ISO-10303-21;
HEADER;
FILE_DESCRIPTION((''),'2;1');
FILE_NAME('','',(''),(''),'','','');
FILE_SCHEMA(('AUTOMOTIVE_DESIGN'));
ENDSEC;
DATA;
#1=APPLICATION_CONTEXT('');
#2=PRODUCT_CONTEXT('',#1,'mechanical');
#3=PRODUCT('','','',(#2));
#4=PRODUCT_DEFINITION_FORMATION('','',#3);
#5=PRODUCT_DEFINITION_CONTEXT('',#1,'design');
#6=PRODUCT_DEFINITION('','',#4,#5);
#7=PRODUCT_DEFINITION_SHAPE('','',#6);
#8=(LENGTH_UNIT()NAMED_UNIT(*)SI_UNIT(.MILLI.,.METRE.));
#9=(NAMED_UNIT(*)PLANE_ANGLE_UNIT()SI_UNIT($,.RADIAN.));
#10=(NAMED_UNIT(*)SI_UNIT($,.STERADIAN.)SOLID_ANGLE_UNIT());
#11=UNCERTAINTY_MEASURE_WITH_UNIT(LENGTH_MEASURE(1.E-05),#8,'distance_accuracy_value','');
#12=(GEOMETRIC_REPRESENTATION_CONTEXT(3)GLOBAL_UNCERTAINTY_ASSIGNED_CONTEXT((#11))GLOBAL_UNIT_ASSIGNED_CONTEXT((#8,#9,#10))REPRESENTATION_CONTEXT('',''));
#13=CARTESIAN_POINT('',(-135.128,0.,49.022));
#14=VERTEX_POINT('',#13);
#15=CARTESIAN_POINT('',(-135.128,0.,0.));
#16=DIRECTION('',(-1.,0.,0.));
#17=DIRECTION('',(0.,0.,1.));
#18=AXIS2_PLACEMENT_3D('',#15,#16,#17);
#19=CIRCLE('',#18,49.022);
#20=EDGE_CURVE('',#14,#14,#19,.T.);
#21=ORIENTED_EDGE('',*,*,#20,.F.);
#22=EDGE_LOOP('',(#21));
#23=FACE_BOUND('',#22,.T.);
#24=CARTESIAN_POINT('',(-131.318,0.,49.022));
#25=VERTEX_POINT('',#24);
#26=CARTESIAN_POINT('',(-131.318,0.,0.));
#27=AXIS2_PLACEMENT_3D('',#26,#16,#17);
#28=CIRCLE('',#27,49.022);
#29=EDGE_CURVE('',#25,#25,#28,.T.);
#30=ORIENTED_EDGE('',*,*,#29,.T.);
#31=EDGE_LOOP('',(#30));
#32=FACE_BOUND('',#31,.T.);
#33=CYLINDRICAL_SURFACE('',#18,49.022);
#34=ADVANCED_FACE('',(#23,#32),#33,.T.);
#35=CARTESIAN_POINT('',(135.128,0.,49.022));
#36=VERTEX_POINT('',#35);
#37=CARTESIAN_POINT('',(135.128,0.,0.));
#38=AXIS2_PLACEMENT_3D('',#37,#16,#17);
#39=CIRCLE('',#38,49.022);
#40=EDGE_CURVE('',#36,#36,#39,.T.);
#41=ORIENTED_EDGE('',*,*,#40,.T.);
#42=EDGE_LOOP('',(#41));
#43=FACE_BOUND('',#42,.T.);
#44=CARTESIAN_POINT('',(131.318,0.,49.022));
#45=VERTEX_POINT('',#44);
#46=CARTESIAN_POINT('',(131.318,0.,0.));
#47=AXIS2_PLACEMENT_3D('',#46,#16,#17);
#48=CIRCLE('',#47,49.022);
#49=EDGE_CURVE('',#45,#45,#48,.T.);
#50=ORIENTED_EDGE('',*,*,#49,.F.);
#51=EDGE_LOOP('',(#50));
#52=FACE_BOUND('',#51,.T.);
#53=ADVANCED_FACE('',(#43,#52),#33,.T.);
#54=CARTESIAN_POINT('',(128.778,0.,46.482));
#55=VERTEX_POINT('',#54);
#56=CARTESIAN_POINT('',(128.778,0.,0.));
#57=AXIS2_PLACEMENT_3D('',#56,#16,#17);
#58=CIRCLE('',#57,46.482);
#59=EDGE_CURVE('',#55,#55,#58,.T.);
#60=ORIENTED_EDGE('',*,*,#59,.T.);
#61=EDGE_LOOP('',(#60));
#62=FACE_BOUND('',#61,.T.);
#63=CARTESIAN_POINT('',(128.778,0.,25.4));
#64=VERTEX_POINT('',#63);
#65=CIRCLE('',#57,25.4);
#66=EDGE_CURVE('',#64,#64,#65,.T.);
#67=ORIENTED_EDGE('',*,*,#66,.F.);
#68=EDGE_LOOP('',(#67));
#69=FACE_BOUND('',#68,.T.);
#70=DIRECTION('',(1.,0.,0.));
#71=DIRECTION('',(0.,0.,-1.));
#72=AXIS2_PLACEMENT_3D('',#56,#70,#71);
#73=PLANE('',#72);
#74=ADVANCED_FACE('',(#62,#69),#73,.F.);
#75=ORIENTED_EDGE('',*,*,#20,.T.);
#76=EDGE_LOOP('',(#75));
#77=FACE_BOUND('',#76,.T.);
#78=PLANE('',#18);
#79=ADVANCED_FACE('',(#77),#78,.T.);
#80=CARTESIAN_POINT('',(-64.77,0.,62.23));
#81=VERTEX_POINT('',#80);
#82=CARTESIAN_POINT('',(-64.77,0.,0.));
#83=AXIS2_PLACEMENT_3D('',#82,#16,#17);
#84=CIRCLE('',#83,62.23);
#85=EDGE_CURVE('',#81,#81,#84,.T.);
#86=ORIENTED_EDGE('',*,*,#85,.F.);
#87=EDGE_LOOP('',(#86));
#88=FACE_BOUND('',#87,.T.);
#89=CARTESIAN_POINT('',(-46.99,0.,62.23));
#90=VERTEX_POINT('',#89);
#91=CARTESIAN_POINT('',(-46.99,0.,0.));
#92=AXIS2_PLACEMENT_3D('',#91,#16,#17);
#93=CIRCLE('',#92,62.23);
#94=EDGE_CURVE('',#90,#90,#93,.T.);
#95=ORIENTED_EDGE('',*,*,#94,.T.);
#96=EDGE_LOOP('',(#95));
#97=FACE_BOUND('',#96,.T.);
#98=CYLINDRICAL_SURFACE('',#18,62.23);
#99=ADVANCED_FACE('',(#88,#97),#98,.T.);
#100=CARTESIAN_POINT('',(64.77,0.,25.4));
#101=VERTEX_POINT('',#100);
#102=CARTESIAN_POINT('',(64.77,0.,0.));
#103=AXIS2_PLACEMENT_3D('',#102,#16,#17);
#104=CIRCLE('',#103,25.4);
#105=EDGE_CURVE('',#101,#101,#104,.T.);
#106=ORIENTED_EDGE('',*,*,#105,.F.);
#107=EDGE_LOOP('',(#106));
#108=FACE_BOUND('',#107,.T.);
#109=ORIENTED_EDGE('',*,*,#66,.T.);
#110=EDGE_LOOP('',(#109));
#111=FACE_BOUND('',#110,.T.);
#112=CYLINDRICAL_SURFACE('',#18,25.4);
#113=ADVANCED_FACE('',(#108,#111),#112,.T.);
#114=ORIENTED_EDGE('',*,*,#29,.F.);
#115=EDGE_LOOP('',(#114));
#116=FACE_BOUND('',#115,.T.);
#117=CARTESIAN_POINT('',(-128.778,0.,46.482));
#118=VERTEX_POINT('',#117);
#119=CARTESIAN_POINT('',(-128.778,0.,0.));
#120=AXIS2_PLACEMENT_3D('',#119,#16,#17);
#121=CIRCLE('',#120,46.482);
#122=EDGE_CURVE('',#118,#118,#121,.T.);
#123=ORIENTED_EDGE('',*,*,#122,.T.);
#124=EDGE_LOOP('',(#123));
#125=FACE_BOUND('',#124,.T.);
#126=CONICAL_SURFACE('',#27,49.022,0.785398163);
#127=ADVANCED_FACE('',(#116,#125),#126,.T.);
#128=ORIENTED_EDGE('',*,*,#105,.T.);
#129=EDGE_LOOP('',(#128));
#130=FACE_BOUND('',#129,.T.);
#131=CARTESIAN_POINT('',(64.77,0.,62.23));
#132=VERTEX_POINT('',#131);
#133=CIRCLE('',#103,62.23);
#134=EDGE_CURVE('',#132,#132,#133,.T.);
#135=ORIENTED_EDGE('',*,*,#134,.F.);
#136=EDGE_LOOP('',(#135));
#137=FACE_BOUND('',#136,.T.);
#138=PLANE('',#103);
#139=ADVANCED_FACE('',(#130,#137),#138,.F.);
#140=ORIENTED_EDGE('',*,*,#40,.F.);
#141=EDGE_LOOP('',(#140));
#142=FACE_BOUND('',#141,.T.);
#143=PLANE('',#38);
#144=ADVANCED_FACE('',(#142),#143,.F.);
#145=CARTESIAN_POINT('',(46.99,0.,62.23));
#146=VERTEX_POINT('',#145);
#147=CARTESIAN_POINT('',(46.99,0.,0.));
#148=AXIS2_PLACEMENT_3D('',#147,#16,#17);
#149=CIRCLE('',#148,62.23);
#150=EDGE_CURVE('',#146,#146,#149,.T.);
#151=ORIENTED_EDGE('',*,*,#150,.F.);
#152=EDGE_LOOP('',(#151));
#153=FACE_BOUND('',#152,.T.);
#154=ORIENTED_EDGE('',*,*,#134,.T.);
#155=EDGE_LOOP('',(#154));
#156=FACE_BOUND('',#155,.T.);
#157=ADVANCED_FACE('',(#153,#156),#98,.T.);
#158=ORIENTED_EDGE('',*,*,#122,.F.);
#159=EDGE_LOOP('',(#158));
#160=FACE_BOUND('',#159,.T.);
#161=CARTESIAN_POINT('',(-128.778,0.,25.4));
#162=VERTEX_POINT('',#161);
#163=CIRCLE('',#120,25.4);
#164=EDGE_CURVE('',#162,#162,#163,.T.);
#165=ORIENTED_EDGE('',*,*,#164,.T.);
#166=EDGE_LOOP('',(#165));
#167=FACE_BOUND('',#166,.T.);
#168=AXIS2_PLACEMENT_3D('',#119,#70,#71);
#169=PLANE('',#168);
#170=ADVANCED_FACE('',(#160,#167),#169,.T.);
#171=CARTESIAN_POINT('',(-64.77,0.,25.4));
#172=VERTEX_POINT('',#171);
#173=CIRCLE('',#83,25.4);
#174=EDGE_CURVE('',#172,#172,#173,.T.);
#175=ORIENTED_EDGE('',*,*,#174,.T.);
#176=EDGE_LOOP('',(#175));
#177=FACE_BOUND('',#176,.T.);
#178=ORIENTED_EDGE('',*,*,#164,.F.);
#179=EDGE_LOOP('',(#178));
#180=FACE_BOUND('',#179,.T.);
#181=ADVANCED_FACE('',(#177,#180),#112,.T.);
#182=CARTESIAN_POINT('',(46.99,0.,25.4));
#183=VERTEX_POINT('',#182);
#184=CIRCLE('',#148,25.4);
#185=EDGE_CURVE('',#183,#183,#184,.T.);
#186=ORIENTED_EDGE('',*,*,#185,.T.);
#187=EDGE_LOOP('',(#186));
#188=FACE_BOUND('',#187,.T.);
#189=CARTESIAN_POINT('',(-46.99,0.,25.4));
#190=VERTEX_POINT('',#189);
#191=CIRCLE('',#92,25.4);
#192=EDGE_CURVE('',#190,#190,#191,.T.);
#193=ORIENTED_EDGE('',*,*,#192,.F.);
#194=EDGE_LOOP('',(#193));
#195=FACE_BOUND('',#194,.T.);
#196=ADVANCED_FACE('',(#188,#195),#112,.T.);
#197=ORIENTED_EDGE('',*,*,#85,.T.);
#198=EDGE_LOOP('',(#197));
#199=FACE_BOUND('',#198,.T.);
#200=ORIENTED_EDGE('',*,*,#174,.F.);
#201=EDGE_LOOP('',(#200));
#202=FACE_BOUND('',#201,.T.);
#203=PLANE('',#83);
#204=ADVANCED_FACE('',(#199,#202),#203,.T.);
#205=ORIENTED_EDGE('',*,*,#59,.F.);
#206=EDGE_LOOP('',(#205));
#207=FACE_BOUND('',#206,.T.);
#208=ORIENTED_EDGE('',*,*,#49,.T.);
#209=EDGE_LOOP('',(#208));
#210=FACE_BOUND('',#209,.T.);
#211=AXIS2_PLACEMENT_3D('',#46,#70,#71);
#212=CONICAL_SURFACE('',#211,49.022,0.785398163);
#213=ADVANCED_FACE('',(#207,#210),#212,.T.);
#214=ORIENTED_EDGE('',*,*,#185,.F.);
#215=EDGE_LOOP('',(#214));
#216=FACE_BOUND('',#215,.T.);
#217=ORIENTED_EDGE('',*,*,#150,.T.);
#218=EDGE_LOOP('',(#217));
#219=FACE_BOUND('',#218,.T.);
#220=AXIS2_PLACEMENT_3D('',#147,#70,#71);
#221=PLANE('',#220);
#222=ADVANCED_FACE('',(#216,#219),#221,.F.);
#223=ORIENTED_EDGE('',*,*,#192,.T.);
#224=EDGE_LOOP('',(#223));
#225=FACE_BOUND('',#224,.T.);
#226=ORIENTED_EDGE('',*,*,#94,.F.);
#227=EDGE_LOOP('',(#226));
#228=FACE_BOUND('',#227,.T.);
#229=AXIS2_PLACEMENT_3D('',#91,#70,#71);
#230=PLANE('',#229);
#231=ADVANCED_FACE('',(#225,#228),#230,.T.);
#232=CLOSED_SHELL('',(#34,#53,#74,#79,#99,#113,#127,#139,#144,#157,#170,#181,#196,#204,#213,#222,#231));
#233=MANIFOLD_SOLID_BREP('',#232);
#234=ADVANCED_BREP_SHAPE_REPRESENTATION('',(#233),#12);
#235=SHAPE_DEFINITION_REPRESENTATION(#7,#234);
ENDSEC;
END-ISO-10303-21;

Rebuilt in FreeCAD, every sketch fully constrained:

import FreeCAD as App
import Part
import Sketcher

V = App.Vector
Q = App.Units.Quantity


def add_polygon(sketch, points):
    """Adds a closed chain of lines whose ends are joined by coincident constraints."""
    first, n = sketch.GeometryCount, len(points)
    for a, b in zip(points, points[1:] + points[:1]):
        sketch.addGeometry(Part.LineSegment(App.Vector(*a, 0), App.Vector(*b, 0)), False)
    for i in range(n):
        sketch.addConstraint(Sketcher.Constraint("Coincident", first + i, 2, first + (i + 1) % n, 1))

doc = App.newDocument("Part")
body = doc.addObject("PartDesign::Body", "Body")

sketch1 = body.newObject("Sketcher::SketchObject", "Sketch")
sketch1.AttachmentSupport = (doc.getObject("XY_Plane"), [""])
sketch1.MapMode = "FlatFace"
add_polygon(sketch1, [(-135.128, 49.022), (-135.128, 0), (135.128, 0), (135.128, 49.022), (131.318, 49.022), (128.778, 46.482), (128.778, 25.4), (64.77, 25.4), (64.77, 62.23), (46.99, 62.23), (46.99, 25.4), (-46.99, 25.4), (-46.99, 62.23), (-64.77, 62.23), (-64.77, 25.4), (-128.778, 25.4), (-128.778, 46.482), (-131.318, 49.022)])
sketch1.addConstraint([
    Sketcher.Constraint("Vertical", 0),
    Sketcher.Constraint("Horizontal", 1),
    Sketcher.Constraint("Vertical", 2),
    Sketcher.Constraint("Horizontal", 3),
    Sketcher.Constraint("Vertical", 5),
    Sketcher.Constraint("Horizontal", 6),
    Sketcher.Constraint("Vertical", 7),
    Sketcher.Constraint("Horizontal", 8),
    Sketcher.Constraint("Vertical", 9),
    Sketcher.Constraint("Horizontal", 10),
    Sketcher.Constraint("Vertical", 11),
    Sketcher.Constraint("Horizontal", 12),
    Sketcher.Constraint("Vertical", 13),
    Sketcher.Constraint("Horizontal", 14),
    Sketcher.Constraint("Vertical", 15),
    Sketcher.Constraint("Horizontal", 17),
    Sketcher.Constraint("Symmetric", 0, 2, 1, 2, -1, 1),
    Sketcher.Constraint("Symmetric", 8, 2, 11, 2, -2),
    Sketcher.Constraint("Symmetric", 6, 2, 13, 2, -2),
    Sketcher.Constraint("Symmetric", 4, 2, 15, 2, -2),
    Sketcher.Constraint("Symmetric", 3, 2, 16, 2, -2),
    Sketcher.Constraint("Perpendicular", 4, 16),
    Sketcher.Constraint("Horizontal", 6, 2, 9, 2),
    Sketcher.Constraint("DistanceX", 8, 2, 8, 1, Q("0.7 in")),
    Sketcher.Constraint("DistanceX", 10, 2, 10, 1, Q("3.7 in")),
    Sketcher.Constraint("DistanceY", -1, 1, 5, 2, Q("1 in")),
    Sketcher.Constraint("DistanceX", 1, 1, 1, 2, Q("10.64 in")),
    Sketcher.Constraint("DistanceX", 3, 2, 3, 1, Q("0.15 in")),
    Sketcher.Constraint("DistanceX", 6, 2, 6, 1, Q("2.52 in")),
    Sketcher.Constraint("DistanceY", 0, 2, 0, 1, Q("1.93 in")),
    Sketcher.Constraint("DistanceY", 7, 1, 7, 2, Q("1.45 in")),
])
revolution = body.newObject("PartDesign::Revolution", "Revolution")
revolution.Profile = sketch1
revolution.ReferenceAxis = (sketch1, ["H_Axis"])
revolution.Angle = 360

doc.recompute()
